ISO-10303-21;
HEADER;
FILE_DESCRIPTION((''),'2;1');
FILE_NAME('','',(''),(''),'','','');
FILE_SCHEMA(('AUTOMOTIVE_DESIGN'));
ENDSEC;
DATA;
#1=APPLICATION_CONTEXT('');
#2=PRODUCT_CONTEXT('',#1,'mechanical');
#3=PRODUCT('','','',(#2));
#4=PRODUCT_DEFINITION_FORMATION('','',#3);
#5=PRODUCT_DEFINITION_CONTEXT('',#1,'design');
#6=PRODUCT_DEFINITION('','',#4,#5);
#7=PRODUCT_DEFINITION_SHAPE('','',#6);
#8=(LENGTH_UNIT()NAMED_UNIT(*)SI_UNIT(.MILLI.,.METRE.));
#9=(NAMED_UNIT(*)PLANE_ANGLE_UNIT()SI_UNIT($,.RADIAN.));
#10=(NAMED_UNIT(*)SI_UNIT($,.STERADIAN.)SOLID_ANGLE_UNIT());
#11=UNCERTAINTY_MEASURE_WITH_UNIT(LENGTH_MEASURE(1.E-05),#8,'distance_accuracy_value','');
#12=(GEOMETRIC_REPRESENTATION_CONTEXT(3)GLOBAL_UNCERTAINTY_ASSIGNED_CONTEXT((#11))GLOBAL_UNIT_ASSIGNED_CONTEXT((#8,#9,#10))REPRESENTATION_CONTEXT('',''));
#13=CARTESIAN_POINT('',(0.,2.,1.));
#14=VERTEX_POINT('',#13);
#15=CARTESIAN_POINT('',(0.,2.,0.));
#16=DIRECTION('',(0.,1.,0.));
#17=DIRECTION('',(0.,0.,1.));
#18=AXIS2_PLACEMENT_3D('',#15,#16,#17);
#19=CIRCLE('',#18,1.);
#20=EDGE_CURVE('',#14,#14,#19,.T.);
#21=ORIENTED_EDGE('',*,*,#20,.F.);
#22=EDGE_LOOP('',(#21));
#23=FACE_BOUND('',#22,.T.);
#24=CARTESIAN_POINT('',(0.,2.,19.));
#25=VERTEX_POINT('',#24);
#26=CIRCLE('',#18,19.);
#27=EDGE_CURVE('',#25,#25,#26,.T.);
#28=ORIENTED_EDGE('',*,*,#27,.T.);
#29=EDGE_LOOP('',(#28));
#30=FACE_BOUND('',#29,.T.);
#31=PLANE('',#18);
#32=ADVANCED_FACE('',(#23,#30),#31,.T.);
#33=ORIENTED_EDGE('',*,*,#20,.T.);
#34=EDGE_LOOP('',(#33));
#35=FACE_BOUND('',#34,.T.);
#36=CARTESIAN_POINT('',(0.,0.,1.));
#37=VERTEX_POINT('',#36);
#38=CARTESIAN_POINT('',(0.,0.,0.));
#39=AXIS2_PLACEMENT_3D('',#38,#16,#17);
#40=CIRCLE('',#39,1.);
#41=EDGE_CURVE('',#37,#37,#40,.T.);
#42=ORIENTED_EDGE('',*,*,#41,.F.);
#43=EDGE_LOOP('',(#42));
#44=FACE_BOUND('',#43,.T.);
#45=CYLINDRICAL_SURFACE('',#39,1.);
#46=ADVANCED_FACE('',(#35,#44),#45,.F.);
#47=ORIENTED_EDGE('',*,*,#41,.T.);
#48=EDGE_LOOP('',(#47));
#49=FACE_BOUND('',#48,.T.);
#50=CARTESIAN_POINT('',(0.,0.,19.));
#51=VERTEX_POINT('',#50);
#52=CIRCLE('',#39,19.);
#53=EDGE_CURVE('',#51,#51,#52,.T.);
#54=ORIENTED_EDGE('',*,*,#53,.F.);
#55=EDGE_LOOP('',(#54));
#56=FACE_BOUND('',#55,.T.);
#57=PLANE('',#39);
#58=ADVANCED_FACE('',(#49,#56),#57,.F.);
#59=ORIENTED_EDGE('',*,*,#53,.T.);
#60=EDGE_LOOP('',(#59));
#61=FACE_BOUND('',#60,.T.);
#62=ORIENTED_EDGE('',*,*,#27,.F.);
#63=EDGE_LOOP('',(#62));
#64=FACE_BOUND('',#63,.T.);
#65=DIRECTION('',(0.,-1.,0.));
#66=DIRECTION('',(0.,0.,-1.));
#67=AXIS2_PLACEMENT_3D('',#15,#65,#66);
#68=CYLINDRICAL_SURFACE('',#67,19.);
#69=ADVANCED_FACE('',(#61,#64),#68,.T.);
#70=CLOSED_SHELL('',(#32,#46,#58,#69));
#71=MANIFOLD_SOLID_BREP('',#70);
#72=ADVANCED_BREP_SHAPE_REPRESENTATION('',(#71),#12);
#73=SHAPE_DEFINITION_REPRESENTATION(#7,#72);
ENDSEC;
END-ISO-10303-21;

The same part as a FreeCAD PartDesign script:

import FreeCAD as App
import Part
import Sketcher
Q = App.Units.Quantity

doc = App.newDocument("Part")
params = doc.addObject("Spreadsheet::Sheet", "Params")
for row, (alias, value) in enumerate([
    ("sketch1_diameter", "38 mm"),
    ("pad1_length", "2 mm"),
    ("sketch2_diameter", "2 mm"),
    ("pocket1_length", "2 mm"),
], start=1):
    params.set(f"A{row}", alias)
    params.set(f"B{row}", "=" + value)
    params.setAlias(f"B{row}", alias)

body = doc.addObject("PartDesign::Body", "Body")

# Sketch on XZ plane
sketch1 = body.newObject("Sketcher::SketchObject", "Sketch")
sketch1.AttachmentSupport = (doc.getObject("XZ_Plane"), [""])
sketch1.MapMode = "FlatFace"
sketch1.addGeometry(Part.Circle(App.Vector(0, 0, 0), App.Vector(0, 0, 1), 19), False)
sketch1.addConstraint([
    Sketcher.Constraint("Coincident", 0, 3, -1, 1),
    Sketcher.Constraint("Diameter", 0, Q("38 mm")),
])
sketch1.setExpression("Constraints[1]", "Params.sketch1_diameter")
pad1 = body.newObject("PartDesign::Pad", "Pad")
pad1.Profile = sketch1
pad1.setExpression("Length", "Params.pad1_length")
pad1.Reversed = True

# Sketch on XZ plane
sketch2 = body.newObject("Sketcher::SketchObject", "Sketch001")
sketch2.AttachmentSupport = (doc.getObject("XZ_Plane"), [""])
sketch2.MapMode = "FlatFace"
sketch2.AttachmentOffset = App.Placement(App.Vector(0, 0, -2), App.Rotation())
sketch2.addGeometry(Part.Circle(App.Vector(0, 0, 0), App.Vector(0, 0, 1), 1), False)
sketch2.addConstraint([
    Sketcher.Constraint("Coincident", 0, 3, -1, 1),
    Sketcher.Constraint("Diameter", 0, Q("2 mm")),
])
sketch2.setExpression("Constraints[1]", "Params.sketch2_diameter")
pocket1 = body.newObject("PartDesign::Pocket", "Pocket")
pocket1.Profile = sketch2
pocket1.setExpression("Length", "Params.pocket1_length")
pocket1.Reversed = True

doc.recompute()
